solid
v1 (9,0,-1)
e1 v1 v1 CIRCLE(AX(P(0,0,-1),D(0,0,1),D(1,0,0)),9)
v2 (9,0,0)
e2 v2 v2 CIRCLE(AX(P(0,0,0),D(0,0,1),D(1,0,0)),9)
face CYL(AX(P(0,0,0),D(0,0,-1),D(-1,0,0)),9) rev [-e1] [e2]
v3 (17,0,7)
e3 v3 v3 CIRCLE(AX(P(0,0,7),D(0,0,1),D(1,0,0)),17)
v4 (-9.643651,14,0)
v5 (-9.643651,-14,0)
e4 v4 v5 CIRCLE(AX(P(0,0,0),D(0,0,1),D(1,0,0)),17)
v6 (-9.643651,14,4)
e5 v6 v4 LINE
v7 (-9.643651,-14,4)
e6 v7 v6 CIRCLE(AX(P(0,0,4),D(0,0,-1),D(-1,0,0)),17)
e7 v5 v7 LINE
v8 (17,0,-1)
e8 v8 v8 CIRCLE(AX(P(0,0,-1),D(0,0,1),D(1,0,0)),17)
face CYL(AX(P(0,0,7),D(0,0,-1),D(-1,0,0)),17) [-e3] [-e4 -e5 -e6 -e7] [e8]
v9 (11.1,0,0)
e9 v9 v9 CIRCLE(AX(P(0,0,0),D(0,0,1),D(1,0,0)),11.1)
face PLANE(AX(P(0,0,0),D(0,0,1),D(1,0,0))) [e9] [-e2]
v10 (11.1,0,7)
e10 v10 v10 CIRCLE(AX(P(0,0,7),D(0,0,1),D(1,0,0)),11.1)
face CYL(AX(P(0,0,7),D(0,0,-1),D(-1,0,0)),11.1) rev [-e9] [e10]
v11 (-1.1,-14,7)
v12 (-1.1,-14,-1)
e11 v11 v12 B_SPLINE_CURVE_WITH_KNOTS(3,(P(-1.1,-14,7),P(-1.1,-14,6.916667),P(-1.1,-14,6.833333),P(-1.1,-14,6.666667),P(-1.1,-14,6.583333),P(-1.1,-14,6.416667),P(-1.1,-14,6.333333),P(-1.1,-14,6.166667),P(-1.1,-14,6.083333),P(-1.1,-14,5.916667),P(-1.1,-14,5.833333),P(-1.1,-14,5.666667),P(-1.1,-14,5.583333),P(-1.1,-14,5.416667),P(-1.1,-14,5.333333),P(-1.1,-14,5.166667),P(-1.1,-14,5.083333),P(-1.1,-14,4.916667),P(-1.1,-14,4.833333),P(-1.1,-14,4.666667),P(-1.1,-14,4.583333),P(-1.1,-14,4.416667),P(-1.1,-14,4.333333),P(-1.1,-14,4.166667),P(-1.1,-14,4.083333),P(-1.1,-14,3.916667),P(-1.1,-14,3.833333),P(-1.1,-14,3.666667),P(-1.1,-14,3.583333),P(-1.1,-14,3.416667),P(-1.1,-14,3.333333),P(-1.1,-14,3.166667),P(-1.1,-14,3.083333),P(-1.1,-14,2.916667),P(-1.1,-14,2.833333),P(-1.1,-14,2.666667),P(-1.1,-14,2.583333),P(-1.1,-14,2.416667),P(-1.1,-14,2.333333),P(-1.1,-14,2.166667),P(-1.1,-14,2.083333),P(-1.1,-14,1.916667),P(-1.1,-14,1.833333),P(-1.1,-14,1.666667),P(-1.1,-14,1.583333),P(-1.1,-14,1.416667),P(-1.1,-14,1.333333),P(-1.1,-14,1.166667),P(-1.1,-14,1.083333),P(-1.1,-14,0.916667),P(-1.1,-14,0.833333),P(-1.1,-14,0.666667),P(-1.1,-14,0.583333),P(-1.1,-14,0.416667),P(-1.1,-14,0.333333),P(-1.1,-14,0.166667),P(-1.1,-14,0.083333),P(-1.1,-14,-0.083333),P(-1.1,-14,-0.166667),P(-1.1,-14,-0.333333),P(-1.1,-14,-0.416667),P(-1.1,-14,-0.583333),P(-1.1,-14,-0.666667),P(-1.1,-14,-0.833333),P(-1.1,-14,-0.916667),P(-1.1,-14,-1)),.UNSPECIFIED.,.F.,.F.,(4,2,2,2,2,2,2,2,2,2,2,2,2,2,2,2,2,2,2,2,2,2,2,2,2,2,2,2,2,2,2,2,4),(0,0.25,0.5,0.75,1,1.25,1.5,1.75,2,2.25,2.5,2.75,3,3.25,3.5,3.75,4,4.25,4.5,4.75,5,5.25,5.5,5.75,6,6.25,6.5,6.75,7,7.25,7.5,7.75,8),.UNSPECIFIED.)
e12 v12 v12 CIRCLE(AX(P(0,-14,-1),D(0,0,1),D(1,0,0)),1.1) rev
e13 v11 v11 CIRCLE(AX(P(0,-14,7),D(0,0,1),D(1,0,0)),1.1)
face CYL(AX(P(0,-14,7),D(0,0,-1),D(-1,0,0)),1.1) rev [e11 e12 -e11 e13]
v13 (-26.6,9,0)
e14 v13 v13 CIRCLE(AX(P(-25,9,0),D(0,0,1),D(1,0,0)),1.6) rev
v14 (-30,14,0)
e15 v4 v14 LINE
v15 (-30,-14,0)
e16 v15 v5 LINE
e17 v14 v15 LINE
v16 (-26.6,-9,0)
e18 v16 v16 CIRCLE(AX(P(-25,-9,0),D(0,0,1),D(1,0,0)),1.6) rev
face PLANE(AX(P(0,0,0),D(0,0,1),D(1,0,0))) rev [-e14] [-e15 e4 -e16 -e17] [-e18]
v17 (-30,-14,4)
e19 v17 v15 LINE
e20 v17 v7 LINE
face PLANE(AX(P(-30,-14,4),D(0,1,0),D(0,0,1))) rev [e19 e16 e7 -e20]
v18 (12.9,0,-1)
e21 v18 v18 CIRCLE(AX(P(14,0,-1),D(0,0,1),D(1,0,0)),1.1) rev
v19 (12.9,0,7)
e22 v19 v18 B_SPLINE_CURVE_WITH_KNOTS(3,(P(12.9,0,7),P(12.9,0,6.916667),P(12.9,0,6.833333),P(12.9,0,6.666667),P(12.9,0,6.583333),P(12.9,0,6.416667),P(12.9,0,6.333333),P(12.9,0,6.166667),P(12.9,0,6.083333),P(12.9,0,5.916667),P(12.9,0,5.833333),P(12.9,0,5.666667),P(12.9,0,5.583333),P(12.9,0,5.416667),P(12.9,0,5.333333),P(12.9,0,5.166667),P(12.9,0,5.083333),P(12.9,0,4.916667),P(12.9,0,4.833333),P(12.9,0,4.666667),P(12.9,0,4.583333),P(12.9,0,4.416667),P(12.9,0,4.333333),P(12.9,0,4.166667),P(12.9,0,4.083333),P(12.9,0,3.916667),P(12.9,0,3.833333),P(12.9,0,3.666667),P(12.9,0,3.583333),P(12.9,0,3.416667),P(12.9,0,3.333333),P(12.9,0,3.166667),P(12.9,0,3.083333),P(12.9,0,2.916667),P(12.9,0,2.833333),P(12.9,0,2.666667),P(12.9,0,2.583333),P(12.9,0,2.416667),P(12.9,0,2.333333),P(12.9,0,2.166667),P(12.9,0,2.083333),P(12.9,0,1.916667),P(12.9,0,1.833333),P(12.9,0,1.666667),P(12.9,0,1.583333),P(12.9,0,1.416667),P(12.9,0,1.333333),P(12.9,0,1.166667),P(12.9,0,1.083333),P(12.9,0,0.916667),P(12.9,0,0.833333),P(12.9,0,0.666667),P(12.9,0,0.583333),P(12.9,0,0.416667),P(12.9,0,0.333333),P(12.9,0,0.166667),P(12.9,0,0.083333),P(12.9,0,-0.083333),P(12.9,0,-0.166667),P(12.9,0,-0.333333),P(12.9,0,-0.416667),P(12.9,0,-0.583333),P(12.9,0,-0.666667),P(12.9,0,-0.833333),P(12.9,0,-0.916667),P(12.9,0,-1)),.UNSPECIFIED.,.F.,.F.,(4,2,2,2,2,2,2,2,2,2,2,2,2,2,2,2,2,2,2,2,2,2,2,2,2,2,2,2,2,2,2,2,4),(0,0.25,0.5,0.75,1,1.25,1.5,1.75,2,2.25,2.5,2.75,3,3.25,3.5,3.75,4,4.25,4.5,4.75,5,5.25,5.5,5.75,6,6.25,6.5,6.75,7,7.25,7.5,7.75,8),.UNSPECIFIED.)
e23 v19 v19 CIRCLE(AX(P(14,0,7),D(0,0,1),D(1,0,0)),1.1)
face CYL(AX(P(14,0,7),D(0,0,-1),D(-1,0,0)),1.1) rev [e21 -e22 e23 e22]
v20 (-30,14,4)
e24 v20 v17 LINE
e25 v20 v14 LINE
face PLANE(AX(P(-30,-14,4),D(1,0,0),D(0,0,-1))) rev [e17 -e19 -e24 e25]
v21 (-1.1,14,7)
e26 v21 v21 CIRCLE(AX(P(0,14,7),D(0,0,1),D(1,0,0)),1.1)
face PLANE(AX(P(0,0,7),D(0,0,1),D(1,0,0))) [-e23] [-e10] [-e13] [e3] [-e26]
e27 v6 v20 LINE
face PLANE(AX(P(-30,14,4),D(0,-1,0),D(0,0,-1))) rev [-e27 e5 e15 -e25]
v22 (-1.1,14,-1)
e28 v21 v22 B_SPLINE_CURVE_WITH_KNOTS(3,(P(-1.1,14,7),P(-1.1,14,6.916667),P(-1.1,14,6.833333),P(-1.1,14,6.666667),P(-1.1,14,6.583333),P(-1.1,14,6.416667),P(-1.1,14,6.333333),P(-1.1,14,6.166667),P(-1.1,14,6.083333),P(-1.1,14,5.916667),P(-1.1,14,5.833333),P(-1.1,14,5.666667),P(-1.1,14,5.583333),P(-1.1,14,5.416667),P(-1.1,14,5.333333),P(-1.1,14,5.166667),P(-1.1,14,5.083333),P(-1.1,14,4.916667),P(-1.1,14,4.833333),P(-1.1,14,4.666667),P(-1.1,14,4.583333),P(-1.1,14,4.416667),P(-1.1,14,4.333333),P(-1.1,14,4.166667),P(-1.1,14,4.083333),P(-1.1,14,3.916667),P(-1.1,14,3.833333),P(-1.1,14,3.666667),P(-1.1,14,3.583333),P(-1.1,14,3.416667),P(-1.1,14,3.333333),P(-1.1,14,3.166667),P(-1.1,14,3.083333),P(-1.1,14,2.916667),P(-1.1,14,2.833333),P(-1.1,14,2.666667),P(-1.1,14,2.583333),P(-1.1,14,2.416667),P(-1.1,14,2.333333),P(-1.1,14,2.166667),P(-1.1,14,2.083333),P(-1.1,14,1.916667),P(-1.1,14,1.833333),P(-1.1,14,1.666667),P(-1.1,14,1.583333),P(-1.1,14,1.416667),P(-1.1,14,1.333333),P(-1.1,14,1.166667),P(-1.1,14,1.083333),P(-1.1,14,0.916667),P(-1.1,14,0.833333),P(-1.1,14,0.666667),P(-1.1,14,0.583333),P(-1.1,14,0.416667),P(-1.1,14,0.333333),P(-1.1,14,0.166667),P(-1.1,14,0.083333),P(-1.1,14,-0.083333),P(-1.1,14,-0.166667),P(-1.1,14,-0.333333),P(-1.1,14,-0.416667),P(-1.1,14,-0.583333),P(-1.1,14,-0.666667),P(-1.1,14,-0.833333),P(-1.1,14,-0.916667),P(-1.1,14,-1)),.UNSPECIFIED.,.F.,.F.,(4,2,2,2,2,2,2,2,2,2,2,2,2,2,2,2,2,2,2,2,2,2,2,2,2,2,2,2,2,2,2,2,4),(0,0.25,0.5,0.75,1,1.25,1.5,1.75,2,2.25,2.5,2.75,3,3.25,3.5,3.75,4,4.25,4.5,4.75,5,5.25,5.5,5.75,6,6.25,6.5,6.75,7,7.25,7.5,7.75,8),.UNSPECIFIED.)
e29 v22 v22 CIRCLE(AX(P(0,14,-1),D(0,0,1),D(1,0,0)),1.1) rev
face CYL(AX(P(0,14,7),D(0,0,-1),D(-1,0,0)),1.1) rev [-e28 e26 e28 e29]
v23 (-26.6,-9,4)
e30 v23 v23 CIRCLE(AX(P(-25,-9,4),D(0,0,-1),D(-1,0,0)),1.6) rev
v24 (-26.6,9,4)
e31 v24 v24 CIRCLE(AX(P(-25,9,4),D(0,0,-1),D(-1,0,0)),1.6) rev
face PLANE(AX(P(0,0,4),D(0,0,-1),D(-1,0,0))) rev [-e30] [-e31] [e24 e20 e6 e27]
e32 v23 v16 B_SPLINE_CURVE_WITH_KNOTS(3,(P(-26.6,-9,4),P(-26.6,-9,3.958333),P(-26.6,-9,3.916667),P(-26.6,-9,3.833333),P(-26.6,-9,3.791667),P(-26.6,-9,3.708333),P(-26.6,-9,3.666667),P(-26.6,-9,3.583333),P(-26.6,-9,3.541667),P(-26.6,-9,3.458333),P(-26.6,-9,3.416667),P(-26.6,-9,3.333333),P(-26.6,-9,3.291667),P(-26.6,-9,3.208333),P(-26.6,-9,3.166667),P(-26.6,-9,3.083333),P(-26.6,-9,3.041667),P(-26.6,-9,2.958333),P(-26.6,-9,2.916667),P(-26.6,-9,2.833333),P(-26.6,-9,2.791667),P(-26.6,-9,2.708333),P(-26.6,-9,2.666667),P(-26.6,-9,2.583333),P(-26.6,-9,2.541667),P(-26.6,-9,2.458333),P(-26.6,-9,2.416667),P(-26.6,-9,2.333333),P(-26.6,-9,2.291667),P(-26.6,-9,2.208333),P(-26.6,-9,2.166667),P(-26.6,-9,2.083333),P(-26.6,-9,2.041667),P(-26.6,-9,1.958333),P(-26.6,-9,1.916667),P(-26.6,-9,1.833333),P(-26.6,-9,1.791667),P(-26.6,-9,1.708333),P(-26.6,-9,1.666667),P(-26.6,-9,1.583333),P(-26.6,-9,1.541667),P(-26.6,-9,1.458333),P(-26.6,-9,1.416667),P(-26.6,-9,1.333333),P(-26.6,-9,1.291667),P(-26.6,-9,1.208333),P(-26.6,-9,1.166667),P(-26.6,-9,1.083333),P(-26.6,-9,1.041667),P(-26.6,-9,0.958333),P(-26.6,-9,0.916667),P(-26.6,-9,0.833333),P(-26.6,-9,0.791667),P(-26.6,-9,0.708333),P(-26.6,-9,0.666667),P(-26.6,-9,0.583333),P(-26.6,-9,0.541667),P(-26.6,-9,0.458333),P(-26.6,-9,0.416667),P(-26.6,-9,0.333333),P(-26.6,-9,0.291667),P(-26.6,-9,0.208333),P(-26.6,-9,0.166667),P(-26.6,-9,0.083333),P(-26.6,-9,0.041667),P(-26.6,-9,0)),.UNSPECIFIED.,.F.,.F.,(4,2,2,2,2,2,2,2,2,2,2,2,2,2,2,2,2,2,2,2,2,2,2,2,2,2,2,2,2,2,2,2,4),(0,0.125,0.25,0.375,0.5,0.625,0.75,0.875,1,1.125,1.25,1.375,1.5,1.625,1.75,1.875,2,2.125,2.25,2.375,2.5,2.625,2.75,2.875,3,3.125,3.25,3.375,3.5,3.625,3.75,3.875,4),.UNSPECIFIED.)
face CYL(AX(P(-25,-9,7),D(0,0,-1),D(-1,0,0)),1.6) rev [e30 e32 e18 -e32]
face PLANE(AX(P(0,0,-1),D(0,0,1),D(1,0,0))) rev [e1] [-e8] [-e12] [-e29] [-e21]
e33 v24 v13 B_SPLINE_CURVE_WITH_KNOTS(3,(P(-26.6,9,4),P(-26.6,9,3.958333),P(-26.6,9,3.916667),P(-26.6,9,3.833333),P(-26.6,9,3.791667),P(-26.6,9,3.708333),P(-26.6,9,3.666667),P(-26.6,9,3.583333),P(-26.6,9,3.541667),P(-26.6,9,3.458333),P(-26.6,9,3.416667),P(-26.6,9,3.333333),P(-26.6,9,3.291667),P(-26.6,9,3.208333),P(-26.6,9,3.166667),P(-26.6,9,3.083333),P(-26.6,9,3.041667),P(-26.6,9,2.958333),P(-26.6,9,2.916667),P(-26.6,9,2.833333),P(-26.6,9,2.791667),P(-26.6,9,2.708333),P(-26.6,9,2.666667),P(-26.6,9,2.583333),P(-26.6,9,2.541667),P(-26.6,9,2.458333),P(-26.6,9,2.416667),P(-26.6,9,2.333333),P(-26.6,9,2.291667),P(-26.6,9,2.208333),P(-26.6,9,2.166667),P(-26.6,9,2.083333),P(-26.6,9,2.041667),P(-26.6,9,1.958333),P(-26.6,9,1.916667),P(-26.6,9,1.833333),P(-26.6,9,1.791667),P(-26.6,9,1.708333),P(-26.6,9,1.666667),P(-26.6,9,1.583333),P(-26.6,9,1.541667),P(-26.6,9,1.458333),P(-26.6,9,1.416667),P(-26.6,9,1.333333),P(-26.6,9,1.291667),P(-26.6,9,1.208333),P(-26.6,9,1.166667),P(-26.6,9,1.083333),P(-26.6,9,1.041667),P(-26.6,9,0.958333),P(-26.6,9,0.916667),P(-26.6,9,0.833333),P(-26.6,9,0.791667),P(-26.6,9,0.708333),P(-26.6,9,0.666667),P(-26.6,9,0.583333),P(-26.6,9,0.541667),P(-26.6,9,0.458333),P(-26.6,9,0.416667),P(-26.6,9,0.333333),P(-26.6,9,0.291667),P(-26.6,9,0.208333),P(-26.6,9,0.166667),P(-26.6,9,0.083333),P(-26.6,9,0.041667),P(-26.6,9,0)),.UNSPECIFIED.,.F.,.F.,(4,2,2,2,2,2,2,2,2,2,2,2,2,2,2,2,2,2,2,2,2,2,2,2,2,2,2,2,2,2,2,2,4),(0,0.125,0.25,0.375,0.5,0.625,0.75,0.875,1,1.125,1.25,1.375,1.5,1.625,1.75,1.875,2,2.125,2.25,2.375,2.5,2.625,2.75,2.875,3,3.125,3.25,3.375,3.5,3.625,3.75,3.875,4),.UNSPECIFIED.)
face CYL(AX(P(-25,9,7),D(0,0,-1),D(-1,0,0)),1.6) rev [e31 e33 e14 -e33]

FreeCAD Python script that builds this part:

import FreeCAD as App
import Part
import Sketcher


def add_polygon(sketch, points):
    """Adds a closed chain of lines whose ends are joined by coincident constraints."""
    first, n = sketch.GeometryCount, len(points)
    for a, b in zip(points, points[1:] + points[:1]):
        sketch.addGeometry(Part.LineSegment(App.Vector(*a, 0), App.Vector(*b, 0)), False)
    for i in range(n):
        sketch.addConstraint(Sketcher.Constraint("Coincident", first + i, 2, first + (i + 1) % n, 1))

doc = App.newDocument("Part")
body = doc.addObject("PartDesign::Body", "Body")

# Sketch on XY plane
sketch1 = doc.addObject("Sketcher::SketchObject", "Sketch")
body.addObject(sketch1)
sketch1.AttachmentSupport = (doc.XY_Plane, [""])
sketch1.MapMode = "FlatFace"
sketch1.addGeometry([
    Part.Circle(App.Vector(0, 0, 0), App.Vector(0, 0, 1), 17),
    Part.Circle(App.Vector(0, 0, 0), App.Vector(0, 0, 1), 11.1),
], False)
sketch1.addConstraint([
    Sketcher.Constraint("Coincident", 0, 3, -1, 1),
    Sketcher.Constraint("Coincident", 1, 3, -1, 1),
    Sketcher.Constraint("Diameter", 0, 34.0),
    Sketcher.Constraint("Diameter", 1, 22.2),
])
pad1 = doc.addObject("PartDesign::Pad", "Pad")
body.addObject(pad1)
pad1.Profile = sketch1
pad1.Length = 7

# Sketch on XY plane
sketch2 = doc.addObject("Sketcher::SketchObject", "Sketch001")
body.addObject(sketch2)
sketch2.AttachmentSupport = (doc.XY_Plane, [""])
sketch2.MapMode = "FlatFace"
add_polygon(sketch2, [(-30, 14), (-30, -14), (0, -14), (0, 14)])  # lines 0-3
sketch2.addConstraint([
    Sketcher.Constraint("Vertical", 0),
    Sketcher.Constraint("Horizontal", 1),
    Sketcher.Constraint("Vertical", 2),
    Sketcher.Constraint("Horizontal", 3),
    Sketcher.Constraint("Symmetric", 1, 2, 2, 2, -1, 1),
    Sketcher.Constraint("DistanceX", 1, 1, 1, 2, 30.0),
    Sketcher.Constraint("DistanceY", 0, 2, 0, 1, 28.0),
])
pad2 = doc.addObject("PartDesign::Pad", "Pad001")
body.addObject(pad2)
pad2.Profile = sketch2
pad2.Length = 4

# Sketch on XY plane
sketch3 = doc.addObject("Sketcher::SketchObject", "Sketch002")
body.addObject(sketch3)
sketch3.AttachmentSupport = (doc.XY_Plane, [""])
sketch3.MapMode = "FlatFace"
sketch3.AttachmentOffset = App.Placement(App.Vector(0, 0, -50), App.Rotation())
sketch3.addGeometry(Part.Circle(App.Vector(0, 0, 0), App.Vector(0, 0, 1), 11.1), False)
sketch3.addConstraint([
    Sketcher.Constraint("Coincident", 0, 3, -1, 1),
    Sketcher.Constraint("Diameter", 0, 22.2),
])
pocket1 = doc.addObject("PartDesign::Pocket", "Pocket")
body.addObject(pocket1)
pocket1.Profile = sketch3
pocket1.Type = "ThroughAll"
pocket1.Reversed = True

# Sketch on XY plane
sketch4 = doc.addObject("Sketcher::SketchObject", "Sketch003")
body.addObject(sketch4)
sketch4.AttachmentSupport = (doc.XY_Plane, [""])
sketch4.MapMode = "FlatFace"
sketch4.AttachmentOffset = App.Placement(App.Vector(0, 0, -1), App.Rotation())
sketch4.addGeometry([
    Part.Circle(App.Vector(0, 0, 0), App.Vector(0, 0, 1), 17),
    Part.Circle(App.Vector(0, 0, 0), App.Vector(0, 0, 1), 9),
], False)
sketch4.addConstraint([
    Sketcher.Constraint("Coincident", 0, 3, -1, 1),
    Sketcher.Constraint("Coincident", 1, 3, -1, 1),
    Sketcher.Constraint("Diameter", 0, 34.0),
    Sketcher.Constraint("Diameter", 1, 18.0),
])
pad3 = doc.addObject("PartDesign::Pad", "Pad002")
body.addObject(pad3)
pad3.Profile = sketch4
pad3.Length = 1

# Sketch on XY plane
sketch5 = doc.addObject("Sketcher::SketchObject", "Sketch004")
body.addObject(sketch5)
sketch5.AttachmentSupport = (doc.XY_Plane, [""])
sketch5.MapMode = "FlatFace"
sketch5.AttachmentOffset = App.Placement(App.Vector(0, 0, -50), App.Rotation())
sketch5.addGeometry([
    Part.Circle(App.Vector(-25, -9, 0), App.Vector(0, 0, 1), 1.6),
    Part.Circle(App.Vector(-25, 9, 0), App.Vector(0, 0, 1), 1.6),
], False)
sketch5.addConstraint([
    Sketcher.Constraint("Equal", 0, 1),
    Sketcher.Constraint("Symmetric", 0, 3, 1, 3, -1),
    Sketcher.Constraint("Diameter", 0, 3.2),
    Sketcher.Constraint("DistanceX", 0, 3, -1, 1, 25.0),
    Sketcher.Constraint("DistanceY", 0, 3, -1, 1, 9.0),
])
pocket2 = doc.addObject("PartDesign::Pocket", "Pocket001")
body.addObject(pocket2)
pocket2.Profile = sketch5
pocket2.Type = "ThroughAll"
pocket2.Reversed = True

# Sketch on XY plane
sketch6 = doc.addObject("Sketcher::SketchObject", "Sketch005")
body.addObject(sketch6)
sketch6.AttachmentSupport = (doc.XY_Plane, [""])
sketch6.MapMode = "FlatFace"
sketch6.AttachmentOffset = App.Placement(App.Vector(0, 0, -50), App.Rotation())
sketch6.addGeometry([
    Part.Circle(App.Vector(14, 0, 0), App.Vector(0, 0, 1), 1.1),
    Part.Circle(App.Vector(0, -14, 0), App.Vector(0, 0, 1), 1.1),
    Part.Circle(App.Vector(0, 14, 0), App.Vector(0, 0, 1), 1.1),
], False)
sketch6.addConstraint([
    Sketcher.Constraint("Equal", 0, 1),
    Sketcher.Constraint("Equal", 1, 2),
    Sketcher.Constraint("Symmetric", 1, 3, 2, 3, -1, 1),
    Sketcher.Constraint("PointOnObject", 0, 3, -1),
    Sketcher.Constraint("PointOnObject", 1, 3, -2),
    Sketcher.Constraint("Diameter", 0, 2.2),
    Sketcher.Constraint("DistanceX", -1, 1, 0, 3, 14.0),
    Sketcher.Constraint("DistanceY", 1, 3, -1, 1, 14.0),
])
pocket3 = doc.addObject("PartDesign::Pocket", "Pocket002")
body.addObject(pocket3)
pocket3.Profile = sketch6
pocket3.Type = "ThroughAll"
pocket3.Reversed = True

doc.recompute()
